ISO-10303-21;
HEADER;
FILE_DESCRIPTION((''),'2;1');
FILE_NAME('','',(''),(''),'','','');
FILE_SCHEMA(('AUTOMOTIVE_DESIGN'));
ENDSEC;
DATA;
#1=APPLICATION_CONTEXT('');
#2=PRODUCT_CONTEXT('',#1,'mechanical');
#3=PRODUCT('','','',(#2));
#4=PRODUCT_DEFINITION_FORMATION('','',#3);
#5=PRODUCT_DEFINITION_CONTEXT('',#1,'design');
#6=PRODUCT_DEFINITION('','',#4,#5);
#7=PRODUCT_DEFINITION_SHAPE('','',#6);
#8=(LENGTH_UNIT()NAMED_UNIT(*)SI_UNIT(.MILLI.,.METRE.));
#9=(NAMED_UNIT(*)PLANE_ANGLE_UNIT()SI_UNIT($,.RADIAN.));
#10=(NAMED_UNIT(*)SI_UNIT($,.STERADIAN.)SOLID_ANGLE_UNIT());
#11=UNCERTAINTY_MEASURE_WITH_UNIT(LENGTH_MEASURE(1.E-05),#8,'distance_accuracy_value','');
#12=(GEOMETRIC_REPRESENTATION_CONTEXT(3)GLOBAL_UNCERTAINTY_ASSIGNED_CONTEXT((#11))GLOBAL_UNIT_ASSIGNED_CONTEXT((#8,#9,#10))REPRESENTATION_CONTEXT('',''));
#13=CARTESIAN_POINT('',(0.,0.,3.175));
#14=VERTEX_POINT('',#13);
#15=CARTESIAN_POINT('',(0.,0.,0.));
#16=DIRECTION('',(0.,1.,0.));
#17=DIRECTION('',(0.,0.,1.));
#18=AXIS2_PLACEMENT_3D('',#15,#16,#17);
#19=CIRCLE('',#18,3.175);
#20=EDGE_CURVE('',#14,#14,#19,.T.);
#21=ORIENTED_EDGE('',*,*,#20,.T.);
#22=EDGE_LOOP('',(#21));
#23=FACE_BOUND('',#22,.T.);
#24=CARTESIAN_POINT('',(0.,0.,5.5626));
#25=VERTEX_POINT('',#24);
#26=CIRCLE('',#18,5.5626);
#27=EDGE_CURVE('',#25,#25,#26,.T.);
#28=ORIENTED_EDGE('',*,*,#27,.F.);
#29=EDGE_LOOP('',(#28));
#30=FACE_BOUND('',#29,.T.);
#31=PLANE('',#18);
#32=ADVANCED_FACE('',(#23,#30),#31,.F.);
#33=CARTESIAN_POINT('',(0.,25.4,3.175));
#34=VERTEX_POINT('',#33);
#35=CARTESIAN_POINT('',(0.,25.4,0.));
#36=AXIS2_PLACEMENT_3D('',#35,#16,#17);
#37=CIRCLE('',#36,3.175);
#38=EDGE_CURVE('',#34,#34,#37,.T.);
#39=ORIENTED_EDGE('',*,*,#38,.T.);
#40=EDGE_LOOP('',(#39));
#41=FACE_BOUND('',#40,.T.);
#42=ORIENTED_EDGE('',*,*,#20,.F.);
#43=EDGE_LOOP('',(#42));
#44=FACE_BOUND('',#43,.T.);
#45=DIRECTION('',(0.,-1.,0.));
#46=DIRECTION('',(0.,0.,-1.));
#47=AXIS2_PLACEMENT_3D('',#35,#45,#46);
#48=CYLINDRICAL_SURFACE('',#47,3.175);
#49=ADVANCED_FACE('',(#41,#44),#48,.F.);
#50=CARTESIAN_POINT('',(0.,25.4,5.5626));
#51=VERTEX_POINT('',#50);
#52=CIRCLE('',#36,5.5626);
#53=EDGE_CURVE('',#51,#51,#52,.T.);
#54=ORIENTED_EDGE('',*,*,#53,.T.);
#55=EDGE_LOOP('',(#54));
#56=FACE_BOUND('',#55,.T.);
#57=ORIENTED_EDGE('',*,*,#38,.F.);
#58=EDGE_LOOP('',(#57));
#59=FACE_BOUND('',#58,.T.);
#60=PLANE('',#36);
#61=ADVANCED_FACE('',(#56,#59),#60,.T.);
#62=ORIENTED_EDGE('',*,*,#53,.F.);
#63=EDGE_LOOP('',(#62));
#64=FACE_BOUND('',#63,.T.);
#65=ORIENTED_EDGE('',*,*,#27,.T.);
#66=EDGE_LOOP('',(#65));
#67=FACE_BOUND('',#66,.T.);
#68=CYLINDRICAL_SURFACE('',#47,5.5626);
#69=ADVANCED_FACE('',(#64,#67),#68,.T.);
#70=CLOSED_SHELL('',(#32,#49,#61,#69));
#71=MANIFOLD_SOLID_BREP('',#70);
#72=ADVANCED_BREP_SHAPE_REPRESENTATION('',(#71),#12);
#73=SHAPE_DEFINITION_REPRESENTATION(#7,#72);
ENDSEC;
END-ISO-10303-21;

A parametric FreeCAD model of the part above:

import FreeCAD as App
import Part
import Sketcher

V = App.Vector
Q = App.Units.Quantity

doc = App.newDocument("Part")
body = doc.addObject("PartDesign::Body", "Body")

# Sketch on XZ plane
sketch1 = body.newObject("Sketcher::SketchObject", "Sketch")
sketch1.AttachmentSupport = (doc.getObject("XZ_Plane"), [""])
sketch1.MapMode = "FlatFace"
sketch1.addGeometry(Part.Circle(V(0, 0, 0), V(0, 0, 1), 5.6), False)
sketch1.addGeometry(Part.Circle(V(0, 0, 0), V(0, 0, 1), 3.2), False)
sketch1.addConstraint(Sketcher.Constraint("Coincident", 0, 3, -1, 1))
sketch1.addConstraint(Sketcher.Constraint("Coincident", 1, 3, -1, 1))
sketch1.addConstraint(Sketcher.Constraint("Diameter", 1, Q("0.25 in")))
sketch1.addConstraint(Sketcher.Constraint("Diameter", 0, Q("0.438 in")))
pad1 = body.newObject("PartDesign::Pad", "Pad")
pad1.Profile = sketch1
pad1.Length = Q("1 in")
pad1.Reversed = True

doc.recompute()
